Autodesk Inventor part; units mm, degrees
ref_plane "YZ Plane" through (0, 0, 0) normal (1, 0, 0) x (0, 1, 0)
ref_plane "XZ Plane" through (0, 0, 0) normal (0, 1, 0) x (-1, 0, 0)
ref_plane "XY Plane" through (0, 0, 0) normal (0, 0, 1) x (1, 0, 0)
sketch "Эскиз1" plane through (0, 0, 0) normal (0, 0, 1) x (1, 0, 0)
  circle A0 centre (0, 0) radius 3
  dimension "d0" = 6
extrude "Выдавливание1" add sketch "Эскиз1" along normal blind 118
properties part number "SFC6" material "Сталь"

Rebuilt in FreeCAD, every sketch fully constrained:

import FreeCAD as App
import Part
import Sketcher
Q = App.Units.Quantity

doc = App.newDocument("Part")
body = doc.addObject("PartDesign::Body", "Body")

# Sketch on XY plane
sketch1 = body.newObject("Sketcher::SketchObject", "Sketch")
sketch1.AttachmentSupport = (doc.getObject("XY_Plane"), [""])
sketch1.MapMode = "FlatFace"
sketch1.addGeometry(Part.Circle(App.Vector(0, 0, 0), App.Vector(0, 0, 1), 3), False)
sketch1.addConstraint([
    Sketcher.Constraint("Coincident", 0, 3, -1, 1),
    Sketcher.Constraint("Diameter", 0, Q("6 mm")),
])
pad1 = body.newObject("PartDesign::Pad", "Pad")
pad1.Profile = sketch1
pad1.Length = 118

doc.recompute()
